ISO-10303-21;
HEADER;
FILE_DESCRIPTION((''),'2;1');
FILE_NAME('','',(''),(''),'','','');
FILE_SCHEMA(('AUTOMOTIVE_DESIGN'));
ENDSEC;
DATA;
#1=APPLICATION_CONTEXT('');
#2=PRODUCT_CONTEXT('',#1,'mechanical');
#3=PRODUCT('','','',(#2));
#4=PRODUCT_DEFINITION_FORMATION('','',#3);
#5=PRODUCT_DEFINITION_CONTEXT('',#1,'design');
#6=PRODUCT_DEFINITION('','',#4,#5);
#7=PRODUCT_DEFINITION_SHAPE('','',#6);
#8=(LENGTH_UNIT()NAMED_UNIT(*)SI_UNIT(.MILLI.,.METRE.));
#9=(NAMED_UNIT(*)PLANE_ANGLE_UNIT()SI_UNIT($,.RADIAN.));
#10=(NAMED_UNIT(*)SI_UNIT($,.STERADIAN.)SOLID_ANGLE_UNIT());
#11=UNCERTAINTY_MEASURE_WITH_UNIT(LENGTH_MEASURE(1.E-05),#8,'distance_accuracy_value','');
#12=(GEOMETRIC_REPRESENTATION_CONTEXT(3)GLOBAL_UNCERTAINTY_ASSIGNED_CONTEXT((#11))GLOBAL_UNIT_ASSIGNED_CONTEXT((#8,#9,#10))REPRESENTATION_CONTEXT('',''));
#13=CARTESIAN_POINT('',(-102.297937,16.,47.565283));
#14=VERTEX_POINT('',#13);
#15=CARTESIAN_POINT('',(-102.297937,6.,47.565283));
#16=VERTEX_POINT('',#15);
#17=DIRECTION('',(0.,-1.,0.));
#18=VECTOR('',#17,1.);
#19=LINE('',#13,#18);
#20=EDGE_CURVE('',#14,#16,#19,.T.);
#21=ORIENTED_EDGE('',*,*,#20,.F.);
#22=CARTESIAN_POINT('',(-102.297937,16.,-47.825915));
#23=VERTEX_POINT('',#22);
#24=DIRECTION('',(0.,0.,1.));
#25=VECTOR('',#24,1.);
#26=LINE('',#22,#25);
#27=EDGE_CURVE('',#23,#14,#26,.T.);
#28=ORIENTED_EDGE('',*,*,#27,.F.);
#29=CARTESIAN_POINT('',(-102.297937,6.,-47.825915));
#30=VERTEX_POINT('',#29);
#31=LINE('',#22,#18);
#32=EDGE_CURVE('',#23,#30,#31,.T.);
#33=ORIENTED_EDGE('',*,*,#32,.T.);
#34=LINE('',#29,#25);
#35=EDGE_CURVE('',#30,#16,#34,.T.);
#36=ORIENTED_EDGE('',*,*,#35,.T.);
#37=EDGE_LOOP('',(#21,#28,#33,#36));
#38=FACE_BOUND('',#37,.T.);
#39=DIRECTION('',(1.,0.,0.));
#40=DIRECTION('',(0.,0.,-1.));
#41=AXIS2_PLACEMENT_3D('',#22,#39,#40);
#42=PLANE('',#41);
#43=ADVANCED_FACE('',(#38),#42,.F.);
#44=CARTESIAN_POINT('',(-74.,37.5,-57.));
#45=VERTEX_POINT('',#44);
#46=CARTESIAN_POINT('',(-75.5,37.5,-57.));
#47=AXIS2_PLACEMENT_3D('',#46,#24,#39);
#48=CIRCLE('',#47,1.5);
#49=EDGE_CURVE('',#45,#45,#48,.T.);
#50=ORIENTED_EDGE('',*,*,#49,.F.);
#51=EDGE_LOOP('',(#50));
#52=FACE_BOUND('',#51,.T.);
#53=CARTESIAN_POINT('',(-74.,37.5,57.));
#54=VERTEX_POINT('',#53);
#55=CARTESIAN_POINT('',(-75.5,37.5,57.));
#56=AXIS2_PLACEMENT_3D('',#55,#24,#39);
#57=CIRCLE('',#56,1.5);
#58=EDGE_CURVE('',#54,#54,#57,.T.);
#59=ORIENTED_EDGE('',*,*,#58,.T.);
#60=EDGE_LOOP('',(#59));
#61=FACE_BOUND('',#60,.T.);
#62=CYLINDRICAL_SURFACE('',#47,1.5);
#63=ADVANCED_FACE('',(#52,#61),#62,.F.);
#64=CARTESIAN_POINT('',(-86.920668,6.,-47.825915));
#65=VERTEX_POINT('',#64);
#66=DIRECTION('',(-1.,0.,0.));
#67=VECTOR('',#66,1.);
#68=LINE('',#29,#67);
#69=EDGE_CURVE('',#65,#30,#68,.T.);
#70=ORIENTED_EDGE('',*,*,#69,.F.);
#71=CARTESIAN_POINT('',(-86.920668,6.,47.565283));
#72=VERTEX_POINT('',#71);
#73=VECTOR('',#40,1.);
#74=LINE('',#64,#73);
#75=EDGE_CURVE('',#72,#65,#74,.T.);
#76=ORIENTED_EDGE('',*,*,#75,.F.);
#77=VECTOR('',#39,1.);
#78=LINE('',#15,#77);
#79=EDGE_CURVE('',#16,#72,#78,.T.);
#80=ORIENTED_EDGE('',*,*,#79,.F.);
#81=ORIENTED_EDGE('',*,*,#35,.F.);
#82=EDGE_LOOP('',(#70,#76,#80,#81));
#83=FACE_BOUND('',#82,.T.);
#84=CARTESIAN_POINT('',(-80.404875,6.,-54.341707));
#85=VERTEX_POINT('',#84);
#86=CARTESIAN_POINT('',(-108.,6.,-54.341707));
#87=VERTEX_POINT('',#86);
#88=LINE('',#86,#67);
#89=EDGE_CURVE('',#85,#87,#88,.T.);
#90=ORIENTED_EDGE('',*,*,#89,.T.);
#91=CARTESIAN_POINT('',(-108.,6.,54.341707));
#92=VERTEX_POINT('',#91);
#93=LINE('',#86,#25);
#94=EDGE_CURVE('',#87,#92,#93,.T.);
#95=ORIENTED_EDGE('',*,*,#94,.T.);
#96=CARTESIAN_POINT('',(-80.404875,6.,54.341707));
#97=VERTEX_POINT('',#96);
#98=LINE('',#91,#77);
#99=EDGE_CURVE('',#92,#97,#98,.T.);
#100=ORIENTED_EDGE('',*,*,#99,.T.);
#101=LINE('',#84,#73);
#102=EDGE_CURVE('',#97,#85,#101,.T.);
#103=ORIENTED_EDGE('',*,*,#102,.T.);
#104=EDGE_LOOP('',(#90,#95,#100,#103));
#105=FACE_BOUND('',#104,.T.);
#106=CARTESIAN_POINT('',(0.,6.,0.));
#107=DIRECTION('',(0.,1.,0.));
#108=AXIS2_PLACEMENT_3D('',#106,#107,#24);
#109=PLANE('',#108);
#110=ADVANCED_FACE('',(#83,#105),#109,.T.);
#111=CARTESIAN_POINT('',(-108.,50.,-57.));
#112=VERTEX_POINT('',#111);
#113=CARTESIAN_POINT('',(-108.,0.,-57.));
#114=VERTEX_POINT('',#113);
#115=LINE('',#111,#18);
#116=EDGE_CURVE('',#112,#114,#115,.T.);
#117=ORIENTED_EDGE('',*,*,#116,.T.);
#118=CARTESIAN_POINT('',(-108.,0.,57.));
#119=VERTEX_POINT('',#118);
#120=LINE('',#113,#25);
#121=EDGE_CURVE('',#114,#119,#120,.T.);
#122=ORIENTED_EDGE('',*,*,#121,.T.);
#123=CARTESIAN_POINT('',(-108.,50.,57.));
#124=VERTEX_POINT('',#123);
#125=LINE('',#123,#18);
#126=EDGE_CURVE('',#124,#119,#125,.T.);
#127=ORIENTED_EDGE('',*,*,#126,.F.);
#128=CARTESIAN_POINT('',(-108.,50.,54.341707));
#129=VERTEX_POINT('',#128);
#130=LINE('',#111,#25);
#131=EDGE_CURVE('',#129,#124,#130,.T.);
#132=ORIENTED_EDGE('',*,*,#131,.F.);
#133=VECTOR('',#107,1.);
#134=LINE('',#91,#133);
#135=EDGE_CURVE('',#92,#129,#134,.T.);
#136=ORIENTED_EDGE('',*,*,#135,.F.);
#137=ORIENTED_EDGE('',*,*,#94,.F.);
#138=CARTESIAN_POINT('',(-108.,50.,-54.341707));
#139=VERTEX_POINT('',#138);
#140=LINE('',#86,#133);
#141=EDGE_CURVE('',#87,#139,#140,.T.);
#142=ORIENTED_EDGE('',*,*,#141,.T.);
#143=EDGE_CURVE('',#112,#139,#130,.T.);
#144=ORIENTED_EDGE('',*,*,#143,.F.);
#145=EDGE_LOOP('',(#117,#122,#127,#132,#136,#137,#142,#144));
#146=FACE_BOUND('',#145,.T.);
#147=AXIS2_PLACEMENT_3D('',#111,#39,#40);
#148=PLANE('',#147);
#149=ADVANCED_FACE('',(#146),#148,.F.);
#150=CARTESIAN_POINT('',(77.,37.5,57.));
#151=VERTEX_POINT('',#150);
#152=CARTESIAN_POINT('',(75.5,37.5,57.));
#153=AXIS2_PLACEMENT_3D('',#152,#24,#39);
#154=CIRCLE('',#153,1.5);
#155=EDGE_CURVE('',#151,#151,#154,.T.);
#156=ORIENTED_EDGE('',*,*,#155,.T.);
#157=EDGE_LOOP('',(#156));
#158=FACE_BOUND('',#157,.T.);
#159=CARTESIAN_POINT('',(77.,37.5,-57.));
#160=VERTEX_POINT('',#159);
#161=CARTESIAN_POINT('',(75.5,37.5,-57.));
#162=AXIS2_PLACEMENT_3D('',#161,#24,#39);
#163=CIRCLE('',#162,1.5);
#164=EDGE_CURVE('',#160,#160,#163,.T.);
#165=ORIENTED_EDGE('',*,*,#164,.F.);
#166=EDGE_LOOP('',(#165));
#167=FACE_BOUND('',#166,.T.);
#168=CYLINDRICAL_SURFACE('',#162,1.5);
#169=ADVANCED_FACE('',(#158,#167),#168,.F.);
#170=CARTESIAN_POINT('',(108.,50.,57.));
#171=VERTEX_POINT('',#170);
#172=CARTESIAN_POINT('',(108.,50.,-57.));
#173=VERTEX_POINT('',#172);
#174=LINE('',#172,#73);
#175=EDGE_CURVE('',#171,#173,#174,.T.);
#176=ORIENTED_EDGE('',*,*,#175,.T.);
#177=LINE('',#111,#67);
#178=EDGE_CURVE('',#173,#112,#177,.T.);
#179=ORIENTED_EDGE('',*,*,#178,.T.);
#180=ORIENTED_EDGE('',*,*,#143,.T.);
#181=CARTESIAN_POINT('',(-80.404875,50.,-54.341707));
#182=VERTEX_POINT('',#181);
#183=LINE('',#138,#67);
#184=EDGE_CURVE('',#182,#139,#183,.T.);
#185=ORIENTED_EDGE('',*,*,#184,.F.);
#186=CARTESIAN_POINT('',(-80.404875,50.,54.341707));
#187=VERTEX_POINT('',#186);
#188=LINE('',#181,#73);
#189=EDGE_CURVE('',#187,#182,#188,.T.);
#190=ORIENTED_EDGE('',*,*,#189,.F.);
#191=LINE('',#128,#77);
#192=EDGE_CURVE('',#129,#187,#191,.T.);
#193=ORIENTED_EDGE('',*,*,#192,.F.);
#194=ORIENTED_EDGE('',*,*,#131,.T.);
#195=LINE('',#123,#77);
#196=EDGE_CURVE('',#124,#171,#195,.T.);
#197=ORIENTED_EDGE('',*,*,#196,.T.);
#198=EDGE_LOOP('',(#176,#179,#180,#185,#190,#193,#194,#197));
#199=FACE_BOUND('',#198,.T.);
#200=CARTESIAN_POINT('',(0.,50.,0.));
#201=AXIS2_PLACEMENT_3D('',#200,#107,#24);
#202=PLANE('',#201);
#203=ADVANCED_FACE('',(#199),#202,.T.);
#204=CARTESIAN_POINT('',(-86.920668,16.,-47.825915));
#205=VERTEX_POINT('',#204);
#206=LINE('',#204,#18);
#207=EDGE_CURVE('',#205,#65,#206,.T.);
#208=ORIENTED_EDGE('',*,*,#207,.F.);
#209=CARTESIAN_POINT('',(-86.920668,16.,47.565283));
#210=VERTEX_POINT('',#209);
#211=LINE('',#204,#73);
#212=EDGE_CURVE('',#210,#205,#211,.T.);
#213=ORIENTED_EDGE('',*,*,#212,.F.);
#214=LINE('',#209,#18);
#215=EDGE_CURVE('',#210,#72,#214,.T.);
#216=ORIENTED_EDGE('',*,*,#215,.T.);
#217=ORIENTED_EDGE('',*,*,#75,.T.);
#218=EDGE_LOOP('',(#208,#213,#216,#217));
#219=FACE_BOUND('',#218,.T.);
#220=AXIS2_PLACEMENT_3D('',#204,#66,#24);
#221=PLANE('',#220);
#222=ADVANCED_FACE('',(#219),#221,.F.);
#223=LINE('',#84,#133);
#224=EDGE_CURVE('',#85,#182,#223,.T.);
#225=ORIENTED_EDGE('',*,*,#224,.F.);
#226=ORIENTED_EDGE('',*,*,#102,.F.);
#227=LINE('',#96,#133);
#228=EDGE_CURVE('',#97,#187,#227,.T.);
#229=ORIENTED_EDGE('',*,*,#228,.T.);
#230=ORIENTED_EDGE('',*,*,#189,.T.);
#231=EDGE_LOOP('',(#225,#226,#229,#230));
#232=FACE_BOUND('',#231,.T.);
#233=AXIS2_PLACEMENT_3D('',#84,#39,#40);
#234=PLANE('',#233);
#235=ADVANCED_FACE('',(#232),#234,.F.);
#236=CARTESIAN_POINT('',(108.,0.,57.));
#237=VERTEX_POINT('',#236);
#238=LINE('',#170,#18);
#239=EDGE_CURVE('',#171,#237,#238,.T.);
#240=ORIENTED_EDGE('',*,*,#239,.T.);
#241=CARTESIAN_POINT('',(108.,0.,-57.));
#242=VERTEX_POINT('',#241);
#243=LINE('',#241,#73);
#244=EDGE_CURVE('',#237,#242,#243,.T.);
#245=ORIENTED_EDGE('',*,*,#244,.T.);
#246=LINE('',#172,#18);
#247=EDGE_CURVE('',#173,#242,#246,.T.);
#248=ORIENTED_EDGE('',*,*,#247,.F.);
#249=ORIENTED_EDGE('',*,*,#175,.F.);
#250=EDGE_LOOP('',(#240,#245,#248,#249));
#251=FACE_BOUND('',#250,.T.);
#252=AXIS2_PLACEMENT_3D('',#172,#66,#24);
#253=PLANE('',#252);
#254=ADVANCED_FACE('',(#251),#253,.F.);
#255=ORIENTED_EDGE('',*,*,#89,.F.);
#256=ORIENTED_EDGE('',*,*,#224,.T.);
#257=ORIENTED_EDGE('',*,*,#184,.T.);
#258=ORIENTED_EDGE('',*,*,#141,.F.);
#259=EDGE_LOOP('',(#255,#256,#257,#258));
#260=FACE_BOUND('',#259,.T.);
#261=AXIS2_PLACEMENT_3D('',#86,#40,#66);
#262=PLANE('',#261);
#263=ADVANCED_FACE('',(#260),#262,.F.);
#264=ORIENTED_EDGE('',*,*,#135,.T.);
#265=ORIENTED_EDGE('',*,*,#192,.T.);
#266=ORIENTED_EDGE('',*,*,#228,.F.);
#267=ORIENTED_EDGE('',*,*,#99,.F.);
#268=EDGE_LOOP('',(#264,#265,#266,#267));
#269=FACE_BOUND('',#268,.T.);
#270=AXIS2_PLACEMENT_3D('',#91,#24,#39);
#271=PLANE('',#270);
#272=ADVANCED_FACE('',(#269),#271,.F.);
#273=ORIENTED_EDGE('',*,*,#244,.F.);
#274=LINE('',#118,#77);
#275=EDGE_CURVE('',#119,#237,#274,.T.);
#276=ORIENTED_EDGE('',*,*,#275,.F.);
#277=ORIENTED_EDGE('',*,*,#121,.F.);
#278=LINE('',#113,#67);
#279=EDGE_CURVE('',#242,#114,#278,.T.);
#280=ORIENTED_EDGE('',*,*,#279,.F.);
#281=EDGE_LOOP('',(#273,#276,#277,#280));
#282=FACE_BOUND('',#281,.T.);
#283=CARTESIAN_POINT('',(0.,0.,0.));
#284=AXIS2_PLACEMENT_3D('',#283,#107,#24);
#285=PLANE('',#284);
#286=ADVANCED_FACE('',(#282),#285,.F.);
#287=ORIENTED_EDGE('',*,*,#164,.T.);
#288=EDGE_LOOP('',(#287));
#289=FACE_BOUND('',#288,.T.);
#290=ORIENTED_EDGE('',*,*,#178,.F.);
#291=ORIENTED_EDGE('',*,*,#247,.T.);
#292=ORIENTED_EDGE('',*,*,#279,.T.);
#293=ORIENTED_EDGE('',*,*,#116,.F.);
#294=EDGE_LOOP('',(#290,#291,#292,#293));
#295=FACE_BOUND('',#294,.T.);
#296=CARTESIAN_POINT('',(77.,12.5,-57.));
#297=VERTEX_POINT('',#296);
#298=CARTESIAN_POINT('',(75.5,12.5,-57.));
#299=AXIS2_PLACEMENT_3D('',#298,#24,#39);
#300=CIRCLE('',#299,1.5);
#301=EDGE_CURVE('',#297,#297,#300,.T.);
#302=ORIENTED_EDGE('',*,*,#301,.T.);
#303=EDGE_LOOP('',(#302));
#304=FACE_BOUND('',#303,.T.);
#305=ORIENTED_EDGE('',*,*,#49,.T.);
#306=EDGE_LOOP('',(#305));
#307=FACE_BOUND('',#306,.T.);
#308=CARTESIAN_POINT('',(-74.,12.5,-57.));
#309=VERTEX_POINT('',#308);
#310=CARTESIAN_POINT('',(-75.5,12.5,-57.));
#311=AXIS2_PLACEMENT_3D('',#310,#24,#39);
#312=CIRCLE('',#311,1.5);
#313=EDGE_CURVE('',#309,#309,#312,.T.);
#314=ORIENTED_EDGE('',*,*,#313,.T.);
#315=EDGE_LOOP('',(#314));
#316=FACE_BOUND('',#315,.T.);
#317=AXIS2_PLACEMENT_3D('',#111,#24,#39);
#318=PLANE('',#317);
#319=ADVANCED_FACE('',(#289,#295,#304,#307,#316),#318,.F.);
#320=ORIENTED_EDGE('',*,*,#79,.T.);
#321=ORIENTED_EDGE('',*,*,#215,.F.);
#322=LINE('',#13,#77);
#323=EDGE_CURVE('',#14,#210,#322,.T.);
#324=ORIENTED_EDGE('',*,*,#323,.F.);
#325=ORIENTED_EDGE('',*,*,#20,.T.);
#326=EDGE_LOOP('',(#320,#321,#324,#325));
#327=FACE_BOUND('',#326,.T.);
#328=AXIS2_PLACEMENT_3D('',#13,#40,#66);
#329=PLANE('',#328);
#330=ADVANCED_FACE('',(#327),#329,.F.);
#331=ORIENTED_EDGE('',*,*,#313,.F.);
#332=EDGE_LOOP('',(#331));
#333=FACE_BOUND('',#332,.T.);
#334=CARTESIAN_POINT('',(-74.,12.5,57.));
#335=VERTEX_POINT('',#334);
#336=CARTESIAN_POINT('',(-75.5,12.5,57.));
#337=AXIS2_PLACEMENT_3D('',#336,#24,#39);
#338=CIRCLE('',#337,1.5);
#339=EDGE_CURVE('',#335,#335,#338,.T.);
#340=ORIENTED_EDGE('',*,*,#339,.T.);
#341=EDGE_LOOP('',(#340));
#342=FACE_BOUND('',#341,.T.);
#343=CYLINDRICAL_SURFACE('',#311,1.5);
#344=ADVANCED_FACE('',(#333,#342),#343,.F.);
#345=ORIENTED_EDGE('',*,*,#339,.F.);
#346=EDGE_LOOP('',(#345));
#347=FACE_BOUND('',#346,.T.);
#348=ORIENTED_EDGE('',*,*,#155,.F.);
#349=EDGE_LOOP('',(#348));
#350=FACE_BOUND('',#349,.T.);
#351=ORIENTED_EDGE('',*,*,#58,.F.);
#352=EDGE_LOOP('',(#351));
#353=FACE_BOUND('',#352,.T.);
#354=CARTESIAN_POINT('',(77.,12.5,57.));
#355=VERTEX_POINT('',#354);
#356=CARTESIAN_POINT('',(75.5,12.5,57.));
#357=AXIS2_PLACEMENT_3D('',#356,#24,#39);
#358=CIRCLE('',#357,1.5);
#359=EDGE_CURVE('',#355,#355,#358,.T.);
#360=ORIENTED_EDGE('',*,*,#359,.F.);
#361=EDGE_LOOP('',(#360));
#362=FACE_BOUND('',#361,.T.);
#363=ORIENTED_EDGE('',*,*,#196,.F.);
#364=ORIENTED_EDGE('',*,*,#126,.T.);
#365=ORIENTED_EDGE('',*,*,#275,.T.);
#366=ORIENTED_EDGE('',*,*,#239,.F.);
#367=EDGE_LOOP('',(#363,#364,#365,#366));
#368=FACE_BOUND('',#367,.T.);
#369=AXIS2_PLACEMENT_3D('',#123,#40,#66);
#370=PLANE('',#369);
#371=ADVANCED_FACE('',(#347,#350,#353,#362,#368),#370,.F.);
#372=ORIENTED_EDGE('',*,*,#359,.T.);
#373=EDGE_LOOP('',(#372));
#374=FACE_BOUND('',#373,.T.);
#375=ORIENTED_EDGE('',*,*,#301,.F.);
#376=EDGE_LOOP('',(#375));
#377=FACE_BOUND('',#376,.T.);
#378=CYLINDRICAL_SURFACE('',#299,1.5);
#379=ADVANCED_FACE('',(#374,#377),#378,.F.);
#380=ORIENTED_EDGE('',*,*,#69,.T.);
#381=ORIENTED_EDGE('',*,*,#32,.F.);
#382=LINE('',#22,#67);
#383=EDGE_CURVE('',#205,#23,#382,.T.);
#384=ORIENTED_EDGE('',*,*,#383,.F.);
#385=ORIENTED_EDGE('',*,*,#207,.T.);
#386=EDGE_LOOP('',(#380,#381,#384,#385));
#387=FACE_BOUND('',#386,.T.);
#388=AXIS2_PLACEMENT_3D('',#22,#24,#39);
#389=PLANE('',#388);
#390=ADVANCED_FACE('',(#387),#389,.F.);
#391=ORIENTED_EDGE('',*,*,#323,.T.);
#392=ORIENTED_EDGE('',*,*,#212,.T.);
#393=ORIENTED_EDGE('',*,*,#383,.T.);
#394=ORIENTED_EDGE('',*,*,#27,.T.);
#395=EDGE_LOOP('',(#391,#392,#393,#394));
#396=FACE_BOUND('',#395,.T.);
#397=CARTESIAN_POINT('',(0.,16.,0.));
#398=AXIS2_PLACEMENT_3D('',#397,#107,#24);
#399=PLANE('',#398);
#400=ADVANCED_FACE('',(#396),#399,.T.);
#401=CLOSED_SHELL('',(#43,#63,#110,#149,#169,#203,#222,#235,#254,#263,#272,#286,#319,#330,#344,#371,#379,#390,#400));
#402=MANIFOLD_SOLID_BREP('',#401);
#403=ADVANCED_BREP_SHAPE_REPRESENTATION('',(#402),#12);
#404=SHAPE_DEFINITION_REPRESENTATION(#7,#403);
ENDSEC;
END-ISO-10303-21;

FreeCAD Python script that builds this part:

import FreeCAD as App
import Part
import Sketcher

V = App.Vector

doc = App.newDocument("Part")
body = doc.addObject("PartDesign::Body", "Body")

# Sketch on XZ plane
sketch1 = body.newObject("Sketcher::SketchObject", "Sketch")
sketch1.AttachmentSupport = (doc.getObject("XZ_Plane"), [""])
sketch1.MapMode = "FlatFace"
sketch1.addGeometry([
    Part.LineSegment(V(-108, -57, 0), V(-108, 57, 0)),
    Part.LineSegment(V(-108, 57, 0), V(108, 57, 0)),
    Part.LineSegment(V(108, 57, 0), V(108, -57, 0)),
    Part.LineSegment(V(108, -57, 0), V(-108, -57, 0)),
], False)
sketch1.addConstraint([
    Sketcher.Constraint("Coincident", 0, 2, 1, 1),
    Sketcher.Constraint("Coincident", 1, 2, 2, 1),
    Sketcher.Constraint("Coincident", 2, 2, 3, 1),
    Sketcher.Constraint("Coincident", 3, 2, 0, 1),
    Sketcher.Constraint("Vertical", 0),
    Sketcher.Constraint("Horizontal", 1),
    Sketcher.Constraint("Vertical", 2),
    Sketcher.Constraint("Horizontal", 3),
    Sketcher.Constraint("Symmetric", 0, 2, 2, 2, -1, 1),
    Sketcher.Constraint("DistanceX", 1, 1, 1, 2, 216.0),
    Sketcher.Constraint("DistanceY", 0, 1, 0, 2, 114.0),
])
pad1 = body.newObject("PartDesign::Pad", "Pad")
pad1.Profile = sketch1
pad1.Length = 50
pad1.Reversed = True

# Sketch on XZ plane
sketch2 = body.newObject("Sketcher::SketchObject", "Sketch001")
sketch2.AttachmentSupport = (doc.getObject("XZ_Plane"), [""])
sketch2.MapMode = "FlatFace"
sketch2.AttachmentOffset = App.Placement(V(0, 0, -50), App.Rotation())
sketch2.addGeometry([
    Part.LineSegment(V(-108, -54.341707, 0), V(-108, 54.341707, 0)),
    Part.LineSegment(V(-108, 54.341707, 0), V(-80.404875, 54.341707, 0)),
    Part.LineSegment(V(-80.404875, 54.341707, 0), V(-80.404875, -54.341707, 0)),
    Part.LineSegment(V(-80.404875, -54.341707, 0), V(-108, -54.341707, 0)),
], False)
sketch2.addConstraint([
    Sketcher.Constraint("Coincident", 0, 2, 1, 1),
    Sketcher.Constraint("Coincident", 1, 2, 2, 1),
    Sketcher.Constraint("Coincident", 2, 2, 3, 1),
    Sketcher.Constraint("Coincident", 3, 2, 0, 1),
    Sketcher.Constraint("Vertical", 0),
    Sketcher.Constraint("Horizontal", 1),
    Sketcher.Constraint("Vertical", 2),
    Sketcher.Constraint("Horizontal", 3),
    Sketcher.Constraint("DistanceX", 0, 2, -1, 1, 108.0),
    Sketcher.Constraint("DistanceX", 1, 1, 1, 2, 27.595125),
    Sketcher.Constraint("DistanceY", 0, 1, 0, 2, 108.683413),
    Sketcher.Constraint("DistanceY", -1, 1, 0, 2, 54.341707),
])
pocket1 = body.newObject("PartDesign::Pocket", "Pocket")
pocket1.Profile = sketch2
pocket1.Length = 44
pocket1.Reversed = True

# Sketch on XZ plane
sketch3 = body.newObject("Sketcher::SketchObject", "Sketch002")
sketch3.AttachmentSupport = (doc.getObject("XZ_Plane"), [""])
sketch3.MapMode = "FlatFace"
sketch3.AttachmentOffset = App.Placement(V(0, 0, -6), App.Rotation())
sketch3.addGeometry([
    Part.LineSegment(V(-102.297937, -47.825915, 0), V(-102.297937, 47.565283, 0)),
    Part.LineSegment(V(-102.297937, 47.565283, 0), V(-86.920668, 47.565283, 0)),
    Part.LineSegment(V(-86.920668, 47.565283, 0), V(-86.920668, -47.825915, 0)),
    Part.LineSegment(V(-86.920668, -47.825915, 0), V(-102.297937, -47.825915, 0)),
], False)
sketch3.addConstraint([
    Sketcher.Constraint("Coincident", 0, 2, 1, 1),
    Sketcher.Constraint("Coincident", 1, 2, 2, 1),
    Sketcher.Constraint("Coincident", 2, 2, 3, 1),
    Sketcher.Constraint("Coincident", 3, 2, 0, 1),
    Sketcher.Constraint("Vertical", 0),
    Sketcher.Constraint("Horizontal", 1),
    Sketcher.Constraint("Vertical", 2),
    Sketcher.Constraint("Horizontal", 3),
    Sketcher.Constraint("DistanceX", 1, 1, 1, 2, 15.37727),
    Sketcher.Constraint("DistanceY", 0, 1, 0, 2, 95.391197),
    Sketcher.Constraint("DistanceX", 0, 2, -1, 1, 102.297937),
    Sketcher.Constraint("DistanceY", -1, 1, 0, 2, 47.565283),
])
pad2 = body.newObject("PartDesign::Pad", "Pad001")
pad2.Profile = sketch3
pad2.Length = 10
pad2.Reversed = True

# Sketch on XY plane
sketch4 = body.newObject("Sketcher::SketchObject", "Sketch003")
sketch4.AttachmentSupport = (doc.getObject("XY_Plane"), [""])
sketch4.MapMode = "FlatFace"
sketch4.AttachmentOffset = App.Placement(V(0, 0, 57), App.Rotation())
sketch4.addGeometry([
    Part.Circle(V(75.5, 37.5, 0), V(0, 0, 1), 1.5),
    Part.Circle(V(75.5, 12.5, 0), V(0, 0, 1), 1.5),
    Part.Circle(V(-75.5, 12.5, 0), V(0, 0, 1), 1.5),
    Part.Circle(V(-75.5, 37.5, 0), V(0, 0, 1), 1.5),
], False)
sketch4.addConstraint([
    Sketcher.Constraint("Equal", 0, 1),
    Sketcher.Constraint("Equal", 1, 2),
    Sketcher.Constraint("Equal", 2, 3),
    Sketcher.Constraint("Symmetric", 1, 3, 2, 3, -2),
    Sketcher.Constraint("Symmetric", 0, 3, 3, 3, -2),
    Sketcher.Constraint("Vertical", 0, 3, 1, 3),
    Sketcher.Constraint("Diameter", 0, 3.0),
    Sketcher.Constraint("DistanceY", 1, 3, 0, 3, 25.0),
    Sketcher.Constraint("DistanceX", 2, 3, 1, 3, 151.0),
    Sketcher.Constraint("DistanceY", -1, 1, 0, 3, 37.5),
])
pocket2 = body.newObject("PartDesign::Pocket", "Pocket001")
pocket2.Profile = sketch4
pocket2.Type = "ThroughAll"

doc.recompute()
